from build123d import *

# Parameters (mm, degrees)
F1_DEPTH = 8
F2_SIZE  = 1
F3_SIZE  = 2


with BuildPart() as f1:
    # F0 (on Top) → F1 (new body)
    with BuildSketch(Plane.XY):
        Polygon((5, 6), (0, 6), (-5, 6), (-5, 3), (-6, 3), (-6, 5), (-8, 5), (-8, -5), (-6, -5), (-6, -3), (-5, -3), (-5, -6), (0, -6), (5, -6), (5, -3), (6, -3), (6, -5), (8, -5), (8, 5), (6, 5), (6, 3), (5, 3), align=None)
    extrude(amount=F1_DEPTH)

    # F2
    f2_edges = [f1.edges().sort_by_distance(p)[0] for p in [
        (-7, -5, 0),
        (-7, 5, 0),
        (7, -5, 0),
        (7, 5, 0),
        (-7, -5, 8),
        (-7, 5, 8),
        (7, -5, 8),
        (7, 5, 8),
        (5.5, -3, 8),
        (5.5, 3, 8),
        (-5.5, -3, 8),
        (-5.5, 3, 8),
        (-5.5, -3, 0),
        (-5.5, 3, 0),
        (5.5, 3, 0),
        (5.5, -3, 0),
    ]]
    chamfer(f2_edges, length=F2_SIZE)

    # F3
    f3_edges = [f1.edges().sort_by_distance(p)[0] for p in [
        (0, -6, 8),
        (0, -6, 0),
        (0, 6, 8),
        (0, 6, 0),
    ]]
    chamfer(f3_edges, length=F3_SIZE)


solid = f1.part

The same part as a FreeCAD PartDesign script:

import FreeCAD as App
import Part
import Sketcher

V = App.Vector
Q = App.Units.Quantity


def edges_at(feature, points):
    """Names of the edges that pass closest to the given points."""
    edges = feature.Shape.Edges
    near = lambda p: min(range(len(edges)), key=lambda i: edges[i].distToShape(Part.Vertex(*p))[0])
    return sorted({f"Edge{near(p) + 1}" for p in points})


def add_polygon(sketch, points):
    """Adds a closed chain of lines whose ends are joined by coincident constraints."""
    first, n = sketch.GeometryCount, len(points)
    for a, b in zip(points, points[1:] + points[:1]):
        sketch.addGeometry(Part.LineSegment(App.Vector(*a, 0), App.Vector(*b, 0)), False)
    for i in range(n):
        sketch.addConstraint(Sketcher.Constraint("Coincident", first + i, 2, first + (i + 1) % n, 1))

doc = App.newDocument("Part")
body = doc.addObject("PartDesign::Body", "Body")

# Sketch on XY plane
sketch1 = body.newObject("Sketcher::SketchObject", "Sketch")
sketch1.AttachmentSupport = (doc.getObject("XY_Plane"), [""])
sketch1.MapMode = "FlatFace"
add_polygon(sketch1, [(5, 6), (-5, 6), (-5, 3), (-6, 3), (-6, 5), (-8, 5), (-8, -5), (-6, -5), (-6, -3), (-5, -3), (-5, -6), (5, -6), (5, -3), (6, -3), (6, -5), (8, -5), (8, 5), (6, 5), (6, 3), (5, 3)])  # lines 0-19
sketch1.addConstraint(Sketcher.Constraint("Horizontal", 0))
sketch1.addConstraint(Sketcher.Constraint("Vertical", 1))
sketch1.addConstraint(Sketcher.Constraint("Horizontal", 2))
sketch1.addConstraint(Sketcher.Constraint("Vertical", 3))
sketch1.addConstraint(Sketcher.Constraint("Horizontal", 4))
sketch1.addConstraint(Sketcher.Constraint("Vertical", 5))
sketch1.addConstraint(Sketcher.Constraint("Horizontal", 6))
sketch1.addConstraint(Sketcher.Constraint("Vertical", 7))
sketch1.addConstraint(Sketcher.Constraint("Horizontal", 8))
sketch1.addConstraint(Sketcher.Constraint("Vertical", 9))
sketch1.addConstraint(Sketcher.Constraint("Horizontal", 10))
sketch1.addConstraint(Sketcher.Constraint("Vertical", 11))
sketch1.addConstraint(Sketcher.Constraint("Horizontal", 12))
sketch1.addConstraint(Sketcher.Constraint("Vertical", 13))
sketch1.addConstraint(Sketcher.Constraint("Horizontal", 14))
sketch1.addConstraint(Sketcher.Constraint("Vertical", 15))
sketch1.addConstraint(Sketcher.Constraint("Horizontal", 16))
sketch1.addConstraint(Sketcher.Constraint("Vertical", 17))
sketch1.addConstraint(Sketcher.Constraint("Horizontal", 18))
sketch1.addConstraint(Sketcher.Constraint("Vertical", 19))
sketch1.addConstraint(Sketcher.Constraint("Symmetric", 0, 2, 10, 2, -1, 1))
sketch1.addConstraint(Sketcher.Constraint("Symmetric", 2, 2, 12, 2, -1, 1))
sketch1.addConstraint(Sketcher.Constraint("Symmetric", 4, 2, 14, 2, -1, 1))
sketch1.addConstraint(Sketcher.Constraint("Symmetric", 6, 2, 16, 2, -1, 1))
sketch1.addConstraint(Sketcher.Constraint("Symmetric", 8, 2, 18, 2, -1, 1))
sketch1.addConstraint(Sketcher.Constraint("Symmetric", 8, 2, 11, 2, -2))
sketch1.addConstraint(Sketcher.Constraint("Symmetric", 6, 2, 13, 2, -2))
sketch1.addConstraint(Sketcher.Constraint("Equal", 16, 3))
sketch1.addConstraint(Sketcher.Constraint("Equal", 10, 5))
sketch1.addConstraint(Sketcher.Constraint("DistanceX", 0, 2, 0, 1, Q("10 mm")))
sketch1.addConstraint(Sketcher.Constraint("DistanceX", 2, 2, 2, 1, Q("1 mm")))
sketch1.addConstraint(Sketcher.Constraint("DistanceX", 4, 2, 4, 1, Q("2 mm")))
sketch1.addConstraint(Sketcher.Constraint("DistanceY", 1, 2, 1, 1, Q("3 mm")))
pad1 = body.newObject("PartDesign::Pad", "Pad")
pad1.Profile = sketch1
pad1.Length = 8
doc.recompute()

chamfer = body.newObject("PartDesign::Chamfer", "Chamfer")
chamfer.Base = (pad1, edges_at(pad1, [
    (-7, -5, 0),
    (-7, 5, 0),
    (7, -5, 0),
    (7, 5, 0),
    (-7, -5, 8),
    (-7, 5, 8),
    (7, -5, 8),
    (7, 5, 8),
    (5.5, -3, 8),
    (5.5, 3, 8),
    (-5.5, -3, 8),
    (-5.5, 3, 8),
    (-5.5, -3, 0),
    (-5.5, 3, 0),
    (5.5, 3, 0),
    (5.5, -3, 0),
]))
chamfer.Size = 1
doc.recompute()

chamfer2 = body.newObject("PartDesign::Chamfer", "Chamfer001")
chamfer2.Base = (chamfer, edges_at(chamfer, [
    (0, -6, 8),
    (0, -6, 0),
    (0, 6, 8),
    (0, 6, 0),
]))
chamfer2.Size = 2

doc.recompute()
